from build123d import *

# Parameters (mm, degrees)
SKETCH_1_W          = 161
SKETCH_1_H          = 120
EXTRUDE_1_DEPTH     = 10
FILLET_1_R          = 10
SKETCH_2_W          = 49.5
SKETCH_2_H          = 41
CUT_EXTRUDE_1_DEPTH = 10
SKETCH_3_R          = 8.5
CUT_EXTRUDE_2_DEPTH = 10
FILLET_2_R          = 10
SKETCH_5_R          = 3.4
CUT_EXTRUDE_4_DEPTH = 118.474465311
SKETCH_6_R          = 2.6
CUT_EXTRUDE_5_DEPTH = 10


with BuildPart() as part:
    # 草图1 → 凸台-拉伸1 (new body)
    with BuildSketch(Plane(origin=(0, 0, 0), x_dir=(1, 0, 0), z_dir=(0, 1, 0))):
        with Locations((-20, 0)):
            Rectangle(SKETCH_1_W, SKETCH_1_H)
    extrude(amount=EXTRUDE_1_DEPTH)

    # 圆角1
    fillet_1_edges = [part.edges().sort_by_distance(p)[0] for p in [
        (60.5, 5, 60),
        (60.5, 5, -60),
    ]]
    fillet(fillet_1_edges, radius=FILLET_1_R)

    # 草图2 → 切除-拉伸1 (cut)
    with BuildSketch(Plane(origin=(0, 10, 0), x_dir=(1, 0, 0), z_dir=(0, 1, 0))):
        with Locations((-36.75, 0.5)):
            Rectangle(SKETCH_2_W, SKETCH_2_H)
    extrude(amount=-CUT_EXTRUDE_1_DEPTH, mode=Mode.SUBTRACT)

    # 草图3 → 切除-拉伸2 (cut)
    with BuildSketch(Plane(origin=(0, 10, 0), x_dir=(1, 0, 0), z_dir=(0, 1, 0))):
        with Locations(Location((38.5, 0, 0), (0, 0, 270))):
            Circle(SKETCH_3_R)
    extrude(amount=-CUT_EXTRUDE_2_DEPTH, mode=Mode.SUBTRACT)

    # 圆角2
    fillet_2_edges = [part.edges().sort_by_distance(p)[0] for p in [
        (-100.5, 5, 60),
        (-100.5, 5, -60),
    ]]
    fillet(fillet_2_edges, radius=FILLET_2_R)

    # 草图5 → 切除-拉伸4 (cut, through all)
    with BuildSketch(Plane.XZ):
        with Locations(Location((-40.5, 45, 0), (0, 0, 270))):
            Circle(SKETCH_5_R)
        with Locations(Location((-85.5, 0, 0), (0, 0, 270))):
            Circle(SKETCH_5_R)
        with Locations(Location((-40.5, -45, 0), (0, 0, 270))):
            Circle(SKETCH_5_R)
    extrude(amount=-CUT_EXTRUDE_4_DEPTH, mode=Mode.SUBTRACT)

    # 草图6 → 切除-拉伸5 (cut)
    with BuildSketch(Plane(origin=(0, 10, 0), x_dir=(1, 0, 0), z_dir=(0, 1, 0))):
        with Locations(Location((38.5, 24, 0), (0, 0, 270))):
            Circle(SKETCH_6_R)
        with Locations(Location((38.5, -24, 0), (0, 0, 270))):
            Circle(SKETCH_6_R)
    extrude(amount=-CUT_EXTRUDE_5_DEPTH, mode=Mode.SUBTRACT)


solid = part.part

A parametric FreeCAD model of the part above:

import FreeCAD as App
import Part
import Sketcher
Q = App.Units.Quantity


def edges_at(feature, points):
    """Names of the edges that pass closest to the given points."""
    edges = feature.Shape.Edges
    near = lambda p: min(range(len(edges)), key=lambda i: edges[i].distToShape(Part.Vertex(*p))[0])
    return sorted({f"Edge{near(p) + 1}" for p in points})


def add_polygon(sketch, points):
    """Adds a closed chain of lines whose ends are joined by coincident constraints."""
    first, n = sketch.GeometryCount, len(points)
    for a, b in zip(points, points[1:] + points[:1]):
        sketch.addGeometry(Part.LineSegment(App.Vector(*a, 0), App.Vector(*b, 0)), False)
    for i in range(n):
        sketch.addConstraint(Sketcher.Constraint("Coincident", first + i, 2, first + (i + 1) % n, 1))

doc = App.newDocument("Part")
body = doc.addObject("PartDesign::Body", "Body")

sketch1 = body.newObject("Sketcher::SketchObject", "Sketch")
sketch1.AttachmentSupport = (doc.getObject("XZ_Plane"), [""])
sketch1.MapMode = "FlatFace"
add_polygon(sketch1, [(-100.5, -60), (-100.5, 60), (60.5, 60), (60.5, -60)])
sketch1.addConstraint(Sketcher.Constraint("Vertical", 0))
sketch1.addConstraint(Sketcher.Constraint("Horizontal", 1))
sketch1.addConstraint(Sketcher.Constraint("Vertical", 2))
sketch1.addConstraint(Sketcher.Constraint("Horizontal", 3))
sketch1.addConstraint(Sketcher.Constraint("DistanceX", 1, 1, 1, 2, Q("161 mm")))
sketch1.addConstraint(Sketcher.Constraint("DistanceY", 0, 1, 0, 2, Q("120 mm")))
sketch1.addConstraint(Sketcher.Constraint("DistanceY", -1, 1, 0, 2, Q("60 mm")))
sketch1.addConstraint(Sketcher.Constraint("DistanceX", 0, 2, -1, 1, Q("100.5 mm")))
pad1 = body.newObject("PartDesign::Pad", "Pad")
pad1.Profile = sketch1
pad1.Length = 10
pad1.Reversed = True
doc.recompute()

fillet = body.newObject("PartDesign::Fillet", "Fillet")
fillet.Base = (pad1, edges_at(pad1, [(60.5, 5, 60), (60.5, 5, -60)]))
fillet.Radius = 10

sketch2 = body.newObject("Sketcher::SketchObject", "Sketch001")
sketch2.AttachmentSupport = (doc.getObject("XZ_Plane"), [""])
sketch2.MapMode = "FlatFace"
sketch2.AttachmentOffset = App.Placement(App.Vector(0, 0, -10), App.Rotation())
add_polygon(sketch2, [(-61.5, -21), (-61.5, 20), (-12, 20), (-12, -21)])
sketch2.addConstraint(Sketcher.Constraint("Vertical", 0))
sketch2.addConstraint(Sketcher.Constraint("Horizontal", 1))
sketch2.addConstraint(Sketcher.Constraint("Vertical", 2))
sketch2.addConstraint(Sketcher.Constraint("Horizontal", 3))
sketch2.addConstraint(Sketcher.Constraint("DistanceY", 0, 1, 0, 2, Q("41 mm")))
sketch2.addConstraint(Sketcher.Constraint("DistanceX", 1, 1, 1, 2, Q("49.5 mm")))
sketch2.addConstraint(Sketcher.Constraint("DistanceY", -1, 1, 0, 2, Q("20 mm")))
sketch2.addConstraint(Sketcher.Constraint("DistanceX", 1, 2, -1, 1, Q("12 mm")))
pocket1 = body.newObject("PartDesign::Pocket", "Pocket")
pocket1.Profile = sketch2
pocket1.Length = 10
pocket1.Reversed = True

sketch3 = body.newObject("Sketcher::SketchObject", "Sketch002")
sketch3.AttachmentSupport = (doc.getObject("XZ_Plane"), [""])
sketch3.MapMode = "FlatFace"
sketch3.AttachmentOffset = App.Placement(App.Vector(0, 0, -10), App.Rotation())
sketch3.addGeometry(Part.Circle(App.Vector(38.5, 0, 0), App.Vector(0, 0, 1), 8.5), False)
sketch3.addConstraint(Sketcher.Constraint("PointOnObject", 0, 3, -1))
sketch3.addConstraint(Sketcher.Constraint("Diameter", 0, Q("17 mm")))
sketch3.addConstraint(Sketcher.Constraint("DistanceX", -1, 1, 0, 3, Q("38.5 mm")))
pocket2 = body.newObject("PartDesign::Pocket", "Pocket001")
pocket2.Profile = sketch3
pocket2.Length = 10
pocket2.Reversed = True
doc.recompute()

fillet2 = body.newObject("PartDesign::Fillet", "Fillet001")
fillet2.Base = (pocket2, edges_at(pocket2, [(-100.5, 5, 60), (-100.5, 5, -60)]))
fillet2.Radius = 10

sketch4 = body.newObject("Sketcher::SketchObject", "Sketch003")
sketch4.AttachmentSupport = (doc.getObject("XZ_Plane"), [""])
sketch4.MapMode = "FlatFace"
sketch4.addGeometry(Part.Circle(App.Vector(-40.5, 45, 0), App.Vector(0, 0, 1), 3.4), False)
sketch4.addGeometry(Part.Circle(App.Vector(-85.5, 0, 0), App.Vector(0, 0, 1), 3.4), False)
sketch4.addGeometry(Part.Circle(App.Vector(-40.5, -45, 0), App.Vector(0, 0, 1), 3.4), False)
sketch4.addConstraint(Sketcher.Constraint("Equal", 0, 1))
sketch4.addConstraint(Sketcher.Constraint("Equal", 1, 2))
sketch4.addConstraint(Sketcher.Constraint("Symmetric", 0, 3, 2, 3, -1))
sketch4.addConstraint(Sketcher.Constraint("PointOnObject", 1, 3, -1))
sketch4.addConstraint(Sketcher.Constraint("Diameter", 0, Q("6.8 mm")))
sketch4.addConstraint(Sketcher.Constraint("DistanceY", -1, 1, 0, 3, Q("45 mm")))
sketch4.addConstraint(Sketcher.Constraint("DistanceX", 1, 3, 0, 3, Q("45 mm")))
sketch4.addConstraint(Sketcher.Constraint("DistanceX", 0, 3, -1, 1, Q("40.5 mm")))
pocket3 = body.newObject("PartDesign::Pocket", "Pocket002")
pocket3.Profile = sketch4
pocket3.Type = "ThroughAll"

sketch5 = body.newObject("Sketcher::SketchObject", "Sketch004")
sketch5.AttachmentSupport = (doc.getObject("XZ_Plane"), [""])
sketch5.MapMode = "FlatFace"
sketch5.AttachmentOffset = App.Placement(App.Vector(0, 0, -10), App.Rotation())
sketch5.addGeometry(Part.Circle(App.Vector(38.5, -24, 0), App.Vector(0, 0, 1), 2.6), False)
sketch5.addGeometry(Part.Circle(App.Vector(38.5, 24, 0), App.Vector(0, 0, 1), 2.6), False)
sketch5.addConstraint(Sketcher.Constraint("Equal", 0, 1))
sketch5.addConstraint(Sketcher.Constraint("Symmetric", 0, 3, 1, 3, -1))
sketch5.addConstraint(Sketcher.Constraint("Diameter", 0, Q("5.2 mm")))
sketch5.addConstraint(Sketcher.Constraint("DistanceY", 0, 3, -1, 1, Q("24 mm")))
sketch5.addConstraint(Sketcher.Constraint("DistanceX", -1, 1, 0, 3, Q("38.5 mm")))
pocket4 = body.newObject("PartDesign::Pocket", "Pocket003")
pocket4.Profile = sketch5
pocket4.Length = 10
pocket4.Reversed = True

doc.recompute()
